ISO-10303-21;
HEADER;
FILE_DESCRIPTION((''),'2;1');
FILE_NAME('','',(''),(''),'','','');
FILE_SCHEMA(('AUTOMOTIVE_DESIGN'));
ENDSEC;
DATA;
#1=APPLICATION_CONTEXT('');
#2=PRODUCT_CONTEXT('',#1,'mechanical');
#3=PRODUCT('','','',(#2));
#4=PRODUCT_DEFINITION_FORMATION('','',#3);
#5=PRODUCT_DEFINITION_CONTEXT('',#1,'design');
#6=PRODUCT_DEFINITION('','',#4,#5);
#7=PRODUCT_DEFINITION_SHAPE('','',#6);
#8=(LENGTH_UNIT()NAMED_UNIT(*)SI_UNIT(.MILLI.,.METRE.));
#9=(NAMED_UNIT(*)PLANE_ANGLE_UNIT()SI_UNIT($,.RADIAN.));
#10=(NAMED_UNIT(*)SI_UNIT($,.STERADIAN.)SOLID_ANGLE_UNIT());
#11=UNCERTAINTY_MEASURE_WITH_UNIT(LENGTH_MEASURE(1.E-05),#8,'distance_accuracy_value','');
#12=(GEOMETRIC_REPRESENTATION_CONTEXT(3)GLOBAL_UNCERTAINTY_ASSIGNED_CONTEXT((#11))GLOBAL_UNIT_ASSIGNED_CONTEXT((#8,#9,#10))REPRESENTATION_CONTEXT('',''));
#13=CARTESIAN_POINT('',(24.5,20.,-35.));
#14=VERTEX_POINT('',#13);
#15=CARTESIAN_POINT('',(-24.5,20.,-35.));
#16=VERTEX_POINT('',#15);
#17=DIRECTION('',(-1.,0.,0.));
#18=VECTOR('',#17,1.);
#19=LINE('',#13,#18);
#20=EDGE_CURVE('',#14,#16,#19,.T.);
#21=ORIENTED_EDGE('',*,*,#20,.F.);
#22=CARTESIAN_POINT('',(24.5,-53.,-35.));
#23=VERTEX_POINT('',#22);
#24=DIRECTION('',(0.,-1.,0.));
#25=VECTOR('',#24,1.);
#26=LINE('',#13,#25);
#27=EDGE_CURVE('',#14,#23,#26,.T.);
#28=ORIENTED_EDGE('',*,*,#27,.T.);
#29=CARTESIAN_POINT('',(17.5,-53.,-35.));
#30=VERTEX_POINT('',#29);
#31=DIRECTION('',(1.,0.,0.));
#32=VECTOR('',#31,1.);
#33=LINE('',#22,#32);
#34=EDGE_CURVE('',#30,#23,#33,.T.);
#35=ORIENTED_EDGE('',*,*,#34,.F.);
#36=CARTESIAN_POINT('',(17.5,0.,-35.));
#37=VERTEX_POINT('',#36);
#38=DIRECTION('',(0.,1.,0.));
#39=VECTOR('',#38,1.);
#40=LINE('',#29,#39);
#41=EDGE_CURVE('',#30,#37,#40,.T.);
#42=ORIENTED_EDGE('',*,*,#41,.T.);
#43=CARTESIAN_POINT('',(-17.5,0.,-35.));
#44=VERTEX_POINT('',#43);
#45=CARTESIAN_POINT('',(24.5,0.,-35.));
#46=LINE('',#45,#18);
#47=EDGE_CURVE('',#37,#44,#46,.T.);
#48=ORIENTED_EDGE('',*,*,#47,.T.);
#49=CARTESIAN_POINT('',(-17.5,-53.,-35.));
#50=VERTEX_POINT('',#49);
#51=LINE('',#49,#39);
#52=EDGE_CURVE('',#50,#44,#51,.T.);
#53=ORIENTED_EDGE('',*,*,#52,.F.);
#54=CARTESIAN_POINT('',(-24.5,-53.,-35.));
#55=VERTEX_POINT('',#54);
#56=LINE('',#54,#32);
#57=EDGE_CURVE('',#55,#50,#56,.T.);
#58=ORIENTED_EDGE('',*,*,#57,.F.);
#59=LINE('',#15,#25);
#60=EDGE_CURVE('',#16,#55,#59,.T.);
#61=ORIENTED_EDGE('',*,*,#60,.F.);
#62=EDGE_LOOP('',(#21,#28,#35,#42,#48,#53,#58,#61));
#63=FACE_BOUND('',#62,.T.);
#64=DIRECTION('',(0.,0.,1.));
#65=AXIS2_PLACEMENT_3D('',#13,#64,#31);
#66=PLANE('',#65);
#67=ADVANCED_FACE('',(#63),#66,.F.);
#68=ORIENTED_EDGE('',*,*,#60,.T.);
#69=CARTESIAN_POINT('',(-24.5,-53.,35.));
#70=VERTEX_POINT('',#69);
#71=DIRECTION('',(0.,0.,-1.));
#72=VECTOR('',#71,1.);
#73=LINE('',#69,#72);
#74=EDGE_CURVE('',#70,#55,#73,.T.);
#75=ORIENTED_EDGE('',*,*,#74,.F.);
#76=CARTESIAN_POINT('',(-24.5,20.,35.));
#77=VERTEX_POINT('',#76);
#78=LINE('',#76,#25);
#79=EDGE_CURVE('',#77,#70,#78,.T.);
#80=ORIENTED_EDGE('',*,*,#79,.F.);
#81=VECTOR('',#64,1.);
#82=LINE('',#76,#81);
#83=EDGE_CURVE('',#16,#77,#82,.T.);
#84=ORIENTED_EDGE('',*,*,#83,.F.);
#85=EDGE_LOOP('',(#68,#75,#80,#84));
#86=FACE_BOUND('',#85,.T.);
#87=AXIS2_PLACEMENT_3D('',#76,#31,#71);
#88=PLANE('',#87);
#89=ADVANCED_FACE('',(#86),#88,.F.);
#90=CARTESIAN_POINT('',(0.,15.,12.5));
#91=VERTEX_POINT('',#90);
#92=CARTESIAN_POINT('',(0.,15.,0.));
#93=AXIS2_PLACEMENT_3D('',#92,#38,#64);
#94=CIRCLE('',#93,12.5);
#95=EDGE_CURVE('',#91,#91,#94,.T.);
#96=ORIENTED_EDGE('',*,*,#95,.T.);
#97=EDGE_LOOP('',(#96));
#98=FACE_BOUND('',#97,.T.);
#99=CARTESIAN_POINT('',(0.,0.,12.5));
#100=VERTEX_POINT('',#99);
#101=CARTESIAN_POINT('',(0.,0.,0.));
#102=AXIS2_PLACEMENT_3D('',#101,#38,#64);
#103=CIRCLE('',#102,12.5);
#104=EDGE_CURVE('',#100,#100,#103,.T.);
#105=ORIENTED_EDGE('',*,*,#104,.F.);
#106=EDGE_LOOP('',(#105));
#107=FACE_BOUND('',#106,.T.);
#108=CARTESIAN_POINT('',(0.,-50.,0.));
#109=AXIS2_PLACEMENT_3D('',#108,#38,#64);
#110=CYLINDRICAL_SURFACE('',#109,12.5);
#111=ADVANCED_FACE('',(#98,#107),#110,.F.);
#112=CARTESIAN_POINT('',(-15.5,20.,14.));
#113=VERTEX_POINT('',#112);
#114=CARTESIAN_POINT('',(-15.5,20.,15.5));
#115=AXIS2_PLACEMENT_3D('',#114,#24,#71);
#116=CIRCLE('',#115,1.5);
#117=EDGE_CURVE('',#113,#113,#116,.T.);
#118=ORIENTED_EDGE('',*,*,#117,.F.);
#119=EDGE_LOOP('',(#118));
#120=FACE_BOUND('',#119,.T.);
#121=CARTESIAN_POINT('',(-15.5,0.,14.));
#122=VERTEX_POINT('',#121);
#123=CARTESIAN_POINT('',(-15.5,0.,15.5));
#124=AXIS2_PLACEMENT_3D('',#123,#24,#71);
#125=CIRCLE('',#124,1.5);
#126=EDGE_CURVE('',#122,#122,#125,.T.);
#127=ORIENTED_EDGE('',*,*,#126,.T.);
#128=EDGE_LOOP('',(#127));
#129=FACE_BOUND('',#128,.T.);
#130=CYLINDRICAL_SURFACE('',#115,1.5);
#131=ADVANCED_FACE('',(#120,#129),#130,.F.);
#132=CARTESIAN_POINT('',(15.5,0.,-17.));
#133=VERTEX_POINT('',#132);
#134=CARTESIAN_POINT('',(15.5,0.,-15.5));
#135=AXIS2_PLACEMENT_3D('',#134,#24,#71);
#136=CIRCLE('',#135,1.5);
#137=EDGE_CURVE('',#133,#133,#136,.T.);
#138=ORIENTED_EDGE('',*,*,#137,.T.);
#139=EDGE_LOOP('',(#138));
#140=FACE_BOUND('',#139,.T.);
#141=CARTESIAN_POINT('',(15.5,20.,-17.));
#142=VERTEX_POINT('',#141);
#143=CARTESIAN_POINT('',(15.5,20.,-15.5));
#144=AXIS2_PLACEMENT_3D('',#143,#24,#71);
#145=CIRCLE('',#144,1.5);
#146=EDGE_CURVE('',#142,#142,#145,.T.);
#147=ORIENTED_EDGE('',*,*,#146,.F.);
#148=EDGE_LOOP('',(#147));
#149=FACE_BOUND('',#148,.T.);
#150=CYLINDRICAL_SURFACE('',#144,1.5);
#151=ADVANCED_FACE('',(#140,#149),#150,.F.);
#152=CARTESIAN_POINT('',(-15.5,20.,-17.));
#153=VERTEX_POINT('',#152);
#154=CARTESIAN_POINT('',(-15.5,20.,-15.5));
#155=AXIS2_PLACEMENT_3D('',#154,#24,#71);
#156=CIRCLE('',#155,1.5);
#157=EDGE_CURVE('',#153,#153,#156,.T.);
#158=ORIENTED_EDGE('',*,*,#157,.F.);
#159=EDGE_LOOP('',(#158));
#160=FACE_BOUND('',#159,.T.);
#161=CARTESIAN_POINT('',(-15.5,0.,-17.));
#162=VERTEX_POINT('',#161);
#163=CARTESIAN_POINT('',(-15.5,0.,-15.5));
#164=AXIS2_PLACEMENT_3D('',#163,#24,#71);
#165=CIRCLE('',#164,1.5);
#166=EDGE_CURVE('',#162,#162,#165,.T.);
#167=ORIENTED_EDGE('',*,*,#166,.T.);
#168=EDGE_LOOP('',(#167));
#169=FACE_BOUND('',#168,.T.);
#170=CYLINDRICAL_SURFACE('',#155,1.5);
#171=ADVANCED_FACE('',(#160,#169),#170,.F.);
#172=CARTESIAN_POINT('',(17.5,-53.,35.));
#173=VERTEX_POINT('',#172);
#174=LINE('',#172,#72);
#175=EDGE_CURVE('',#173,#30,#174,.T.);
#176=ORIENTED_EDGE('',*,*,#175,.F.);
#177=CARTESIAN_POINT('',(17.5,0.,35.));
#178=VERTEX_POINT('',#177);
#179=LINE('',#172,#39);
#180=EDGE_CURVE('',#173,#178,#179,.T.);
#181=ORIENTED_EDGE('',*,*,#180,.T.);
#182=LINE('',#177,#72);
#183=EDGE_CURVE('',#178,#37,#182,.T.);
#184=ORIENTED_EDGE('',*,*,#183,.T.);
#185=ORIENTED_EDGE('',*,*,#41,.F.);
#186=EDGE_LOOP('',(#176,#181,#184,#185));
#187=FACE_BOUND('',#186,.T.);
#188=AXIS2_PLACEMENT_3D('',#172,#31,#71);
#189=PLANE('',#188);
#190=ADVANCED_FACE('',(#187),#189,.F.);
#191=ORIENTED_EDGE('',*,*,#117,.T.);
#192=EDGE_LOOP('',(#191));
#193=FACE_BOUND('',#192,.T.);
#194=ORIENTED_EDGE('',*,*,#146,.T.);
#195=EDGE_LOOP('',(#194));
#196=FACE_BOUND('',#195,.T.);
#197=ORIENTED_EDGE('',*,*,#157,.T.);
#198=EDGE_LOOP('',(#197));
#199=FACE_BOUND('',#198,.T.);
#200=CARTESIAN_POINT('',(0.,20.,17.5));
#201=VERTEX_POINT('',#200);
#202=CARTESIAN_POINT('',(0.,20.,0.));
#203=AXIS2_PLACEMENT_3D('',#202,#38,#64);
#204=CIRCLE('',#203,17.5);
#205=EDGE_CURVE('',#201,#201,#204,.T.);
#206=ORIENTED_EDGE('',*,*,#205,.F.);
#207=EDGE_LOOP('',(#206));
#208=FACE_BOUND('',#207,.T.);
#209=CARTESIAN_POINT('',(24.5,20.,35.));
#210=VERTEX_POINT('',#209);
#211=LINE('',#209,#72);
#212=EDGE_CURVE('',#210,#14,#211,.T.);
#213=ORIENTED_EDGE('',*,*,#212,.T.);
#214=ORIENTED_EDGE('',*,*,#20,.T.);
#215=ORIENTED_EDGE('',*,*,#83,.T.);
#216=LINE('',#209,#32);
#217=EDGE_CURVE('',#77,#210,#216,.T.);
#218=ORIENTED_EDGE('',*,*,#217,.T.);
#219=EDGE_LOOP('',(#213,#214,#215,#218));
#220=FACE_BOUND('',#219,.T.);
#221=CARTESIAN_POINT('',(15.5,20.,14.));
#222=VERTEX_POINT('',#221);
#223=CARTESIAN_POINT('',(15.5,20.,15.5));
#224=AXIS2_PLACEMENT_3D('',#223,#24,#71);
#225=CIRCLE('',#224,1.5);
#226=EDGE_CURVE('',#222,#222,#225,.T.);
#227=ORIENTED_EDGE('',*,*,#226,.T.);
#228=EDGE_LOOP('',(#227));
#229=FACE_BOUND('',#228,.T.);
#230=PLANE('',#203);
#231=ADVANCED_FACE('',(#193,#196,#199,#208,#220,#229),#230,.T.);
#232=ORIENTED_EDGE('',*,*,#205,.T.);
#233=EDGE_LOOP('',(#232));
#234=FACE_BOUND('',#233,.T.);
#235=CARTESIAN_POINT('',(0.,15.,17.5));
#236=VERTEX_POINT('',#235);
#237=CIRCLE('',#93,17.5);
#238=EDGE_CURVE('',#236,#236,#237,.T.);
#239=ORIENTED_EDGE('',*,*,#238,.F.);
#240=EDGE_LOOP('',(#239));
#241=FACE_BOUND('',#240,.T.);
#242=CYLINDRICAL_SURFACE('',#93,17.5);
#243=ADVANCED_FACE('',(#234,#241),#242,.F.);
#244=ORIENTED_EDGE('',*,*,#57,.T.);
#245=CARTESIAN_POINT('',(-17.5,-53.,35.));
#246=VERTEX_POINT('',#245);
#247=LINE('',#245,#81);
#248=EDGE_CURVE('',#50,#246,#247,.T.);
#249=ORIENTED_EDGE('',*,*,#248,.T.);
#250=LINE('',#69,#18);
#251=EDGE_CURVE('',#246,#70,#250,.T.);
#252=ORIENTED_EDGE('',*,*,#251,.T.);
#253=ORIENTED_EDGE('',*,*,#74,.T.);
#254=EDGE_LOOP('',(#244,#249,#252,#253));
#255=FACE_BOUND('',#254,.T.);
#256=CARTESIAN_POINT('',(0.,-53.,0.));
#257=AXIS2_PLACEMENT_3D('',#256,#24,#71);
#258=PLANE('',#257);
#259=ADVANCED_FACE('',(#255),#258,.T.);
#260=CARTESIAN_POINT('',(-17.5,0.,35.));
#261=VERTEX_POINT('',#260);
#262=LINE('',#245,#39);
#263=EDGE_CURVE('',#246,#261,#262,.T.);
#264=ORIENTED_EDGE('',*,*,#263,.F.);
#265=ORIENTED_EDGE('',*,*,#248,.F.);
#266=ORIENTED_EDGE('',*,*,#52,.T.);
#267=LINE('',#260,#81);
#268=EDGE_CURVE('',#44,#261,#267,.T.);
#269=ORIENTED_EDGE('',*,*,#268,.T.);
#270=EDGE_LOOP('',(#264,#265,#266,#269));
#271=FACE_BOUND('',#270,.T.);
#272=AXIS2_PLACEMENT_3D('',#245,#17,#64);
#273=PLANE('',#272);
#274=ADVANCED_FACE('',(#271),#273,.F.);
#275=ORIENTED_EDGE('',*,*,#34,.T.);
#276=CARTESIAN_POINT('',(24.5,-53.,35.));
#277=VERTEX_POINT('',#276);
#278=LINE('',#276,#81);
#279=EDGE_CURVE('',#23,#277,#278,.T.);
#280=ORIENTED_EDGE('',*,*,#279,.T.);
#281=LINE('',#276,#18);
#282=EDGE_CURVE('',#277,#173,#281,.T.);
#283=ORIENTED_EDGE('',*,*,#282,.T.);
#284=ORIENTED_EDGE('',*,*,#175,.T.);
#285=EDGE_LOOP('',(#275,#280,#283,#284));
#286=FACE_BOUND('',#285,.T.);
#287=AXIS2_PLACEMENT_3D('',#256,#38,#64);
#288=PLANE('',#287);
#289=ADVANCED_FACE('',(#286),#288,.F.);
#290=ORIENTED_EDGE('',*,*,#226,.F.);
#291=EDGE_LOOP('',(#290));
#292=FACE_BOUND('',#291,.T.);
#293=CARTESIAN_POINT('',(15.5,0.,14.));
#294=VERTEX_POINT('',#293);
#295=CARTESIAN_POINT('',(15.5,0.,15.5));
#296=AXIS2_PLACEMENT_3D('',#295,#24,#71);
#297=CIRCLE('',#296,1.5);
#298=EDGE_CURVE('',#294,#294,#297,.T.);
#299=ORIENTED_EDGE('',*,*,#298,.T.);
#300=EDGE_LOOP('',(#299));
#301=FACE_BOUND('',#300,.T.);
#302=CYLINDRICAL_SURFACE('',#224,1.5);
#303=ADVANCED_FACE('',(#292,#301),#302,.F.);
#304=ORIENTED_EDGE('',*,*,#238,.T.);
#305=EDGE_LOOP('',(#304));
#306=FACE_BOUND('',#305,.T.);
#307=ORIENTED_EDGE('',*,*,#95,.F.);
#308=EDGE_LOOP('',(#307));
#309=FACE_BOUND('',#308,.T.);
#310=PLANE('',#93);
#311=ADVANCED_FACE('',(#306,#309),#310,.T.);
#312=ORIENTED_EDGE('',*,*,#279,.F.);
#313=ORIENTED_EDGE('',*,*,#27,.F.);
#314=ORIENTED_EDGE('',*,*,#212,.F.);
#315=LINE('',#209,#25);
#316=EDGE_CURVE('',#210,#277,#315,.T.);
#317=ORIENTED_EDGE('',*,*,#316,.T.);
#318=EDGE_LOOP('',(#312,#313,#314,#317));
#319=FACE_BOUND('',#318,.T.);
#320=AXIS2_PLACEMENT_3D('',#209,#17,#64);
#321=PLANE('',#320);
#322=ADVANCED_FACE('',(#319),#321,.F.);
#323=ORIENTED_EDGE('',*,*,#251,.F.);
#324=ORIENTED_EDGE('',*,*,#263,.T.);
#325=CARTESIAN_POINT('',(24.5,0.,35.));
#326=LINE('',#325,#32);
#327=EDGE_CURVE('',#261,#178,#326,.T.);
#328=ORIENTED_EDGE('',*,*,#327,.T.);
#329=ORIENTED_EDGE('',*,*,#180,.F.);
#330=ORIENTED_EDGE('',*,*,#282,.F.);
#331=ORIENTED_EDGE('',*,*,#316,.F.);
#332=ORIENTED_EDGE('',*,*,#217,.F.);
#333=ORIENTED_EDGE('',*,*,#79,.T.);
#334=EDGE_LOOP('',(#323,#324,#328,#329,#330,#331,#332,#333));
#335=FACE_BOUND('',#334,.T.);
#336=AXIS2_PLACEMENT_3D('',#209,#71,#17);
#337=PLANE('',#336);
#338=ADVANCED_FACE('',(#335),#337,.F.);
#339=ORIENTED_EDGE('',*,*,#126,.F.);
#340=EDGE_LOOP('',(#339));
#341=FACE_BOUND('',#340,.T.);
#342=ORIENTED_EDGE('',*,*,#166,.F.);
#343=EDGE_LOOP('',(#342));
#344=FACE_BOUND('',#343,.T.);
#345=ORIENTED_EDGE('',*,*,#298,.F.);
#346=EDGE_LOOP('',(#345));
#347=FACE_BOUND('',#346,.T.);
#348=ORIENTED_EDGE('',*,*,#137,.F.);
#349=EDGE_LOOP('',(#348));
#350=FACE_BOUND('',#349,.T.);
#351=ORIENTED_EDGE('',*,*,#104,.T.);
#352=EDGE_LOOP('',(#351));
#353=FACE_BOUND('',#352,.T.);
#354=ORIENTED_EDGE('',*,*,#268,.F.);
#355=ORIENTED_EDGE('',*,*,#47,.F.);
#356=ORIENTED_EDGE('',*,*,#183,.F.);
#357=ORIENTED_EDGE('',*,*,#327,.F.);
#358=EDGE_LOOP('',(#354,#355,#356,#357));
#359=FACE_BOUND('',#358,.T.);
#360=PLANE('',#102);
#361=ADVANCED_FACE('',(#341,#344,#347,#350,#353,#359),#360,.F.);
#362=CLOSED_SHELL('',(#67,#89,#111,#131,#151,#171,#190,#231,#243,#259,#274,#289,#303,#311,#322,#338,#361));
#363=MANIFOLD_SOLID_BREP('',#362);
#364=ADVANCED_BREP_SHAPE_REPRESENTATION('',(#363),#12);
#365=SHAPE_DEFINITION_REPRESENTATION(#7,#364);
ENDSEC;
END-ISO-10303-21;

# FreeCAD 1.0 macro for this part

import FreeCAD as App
import Part
import Sketcher

V = App.Vector
Q = App.Units.Quantity

doc = App.newDocument("Part")
body = doc.addObject("PartDesign::Body", "Body")

# Sketch on XZ plane
sketch1 = body.newObject("Sketcher::SketchObject", "Sketch")
sketch1.AttachmentSupport = (doc.getObject("XZ_Plane"), [""])
sketch1.MapMode = "FlatFace"
sketch1.addGeometry([
    Part.LineSegment(V(-24.5, -35, 0), V(-24.5, 35, 0)),
    Part.LineSegment(V(-24.5, 35, 0), V(24.5, 35, 0)),
    Part.LineSegment(V(24.5, 35, 0), V(24.5, -35, 0)),
    Part.LineSegment(V(24.5, -35, 0), V(-24.5, -35, 0)),
], False)
sketch1.addConstraint([
    Sketcher.Constraint("Coincident", 0, 2, 1, 1),
    Sketcher.Constraint("Coincident", 1, 2, 2, 1),
    Sketcher.Constraint("Coincident", 2, 2, 3, 1),
    Sketcher.Constraint("Coincident", 3, 2, 0, 1),
    Sketcher.Constraint("Vertical", 0),
    Sketcher.Constraint("Horizontal", 1),
    Sketcher.Constraint("Vertical", 2),
    Sketcher.Constraint("Horizontal", 3),
    Sketcher.Constraint("Symmetric", 0, 2, 2, 2, -1, 1),
    Sketcher.Constraint("DistanceX", 1, 1, 1, 2, Q("49 mm")),
    Sketcher.Constraint("DistanceY", 0, 1, 0, 2, Q("70 mm")),
])
pad1 = body.newObject("PartDesign::Pad", "Pad")
pad1.Profile = sketch1
pad1.Length = 20
pad1.Reversed = True

# Sketch on XZ plane
sketch2 = body.newObject("Sketcher::SketchObject", "Sketch001")
sketch2.AttachmentSupport = (doc.getObject("XZ_Plane"), [""])
sketch2.MapMode = "FlatFace"
sketch2.AttachmentOffset = App.Placement(V(0, 0, -20), App.Rotation())
sketch2.addGeometry(Part.Circle(V(0, 0, 0), V(0, 0, 1), 12.5), False)
sketch2.addConstraint([
    Sketcher.Constraint("Coincident", 0, 3, -1, 1),
    Sketcher.Constraint("Diameter", 0, Q("25 mm")),
])
pocket1 = body.newObject("PartDesign::Pocket", "Pocket")
pocket1.Profile = sketch2
pocket1.Length = 70
pocket1.Reversed = True

# Sketch on XZ plane
sketch3 = body.newObject("Sketcher::SketchObject", "Sketch002")
sketch3.AttachmentSupport = (doc.getObject("XZ_Plane"), [""])
sketch3.MapMode = "FlatFace"
sketch3.addGeometry([
    Part.Circle(V(-15.5, 15.5, 0), V(0, 0, 1), 1.5),
    Part.Circle(V(15.5, 15.5, 0), V(0, 0, 1), 1.5),
    Part.Circle(V(15.5, -15.5, 0), V(0, 0, 1), 1.5),
    Part.Circle(V(-15.5, -15.5, 0), V(0, 0, 1), 1.5),
], False)
sketch3.addConstraint([
    Sketcher.Constraint("Equal", 0, 1),
    Sketcher.Constraint("Equal", 1, 2),
    Sketcher.Constraint("Equal", 2, 3),
    Sketcher.Constraint("Symmetric", 0, 3, 2, 3, -1, 1),
    Sketcher.Constraint("Symmetric", 1, 3, 3, 3, -1, 1),
    Sketcher.Constraint("Symmetric", 0, 3, 1, 3, -2),
    Sketcher.Constraint("Diameter", 0, Q("3 mm")),
    Sketcher.Constraint("DistanceX", 0, 3, 1, 3, Q("31 mm")),
    Sketcher.Constraint("DistanceY", 2, 3, 1, 3, Q("31 mm")),
])
pocket2 = body.newObject("PartDesign::Pocket", "Pocket001")
pocket2.Profile = sketch3
pocket2.Type = "ThroughAll"

# Sketch on XZ plane
sketch4 = body.newObject("Sketcher::SketchObject", "Sketch003")
sketch4.AttachmentSupport = (doc.getObject("XZ_Plane"), [""])
sketch4.MapMode = "FlatFace"
sketch4.AttachmentOffset = App.Placement(V(0, 0, -20), App.Rotation())
sketch4.addGeometry([
    Part.Circle(V(0, 0, 0), V(0, 0, 1), 17.5),
    Part.Circle(V(0, 0, 0), V(0, 0, 1), 12.5),
], False)
sketch4.addConstraint([
    Sketcher.Constraint("Coincident", 0, 3, -1, 1),
    Sketcher.Constraint("Coincident", 1, 3, -1, 1),
    Sketcher.Constraint("Diameter", 0, Q("35 mm")),
    Sketcher.Constraint("Diameter", 1, Q("25 mm")),
])
pocket3 = body.newObject("PartDesign::Pocket", "Pocket002")
pocket3.Profile = sketch4
pocket3.Length = 5
pocket3.Reversed = True

# Sketch on XZ plane
sketch5 = body.newObject("Sketcher::SketchObject", "Sketch004")
sketch5.AttachmentSupport = (doc.getObject("XZ_Plane"), [""])
sketch5.MapMode = "FlatFace"
sketch5.addGeometry([
    Part.LineSegment(V(-24.5, 35, 0), V(-24.5, -35, 0)),  # 0
    Part.LineSegment(V(-24.5, -35, 0), V(-17.5, -35, 0)),  # 1
    Part.LineSegment(V(-17.5, -35, 0), V(-17.5, 35, 0)),  # 2
    Part.LineSegment(V(-17.5, 35, 0), V(-24.5, 35, 0)),  # 3
    Part.LineSegment(V(17.5, 35, 0), V(17.5, -35, 0)),  # 4
    Part.LineSegment(V(17.5, -35, 0), V(24.5, -35, 0)),  # 5
    Part.LineSegment(V(24.5, -35, 0), V(24.5, 35, 0)),  # 6
    Part.LineSegment(V(24.5, 35, 0), V(17.5, 35, 0)),  # 7
], False)
sketch5.addConstraint([
    Sketcher.Constraint("Coincident", 0, 2, 1, 1),
    Sketcher.Constraint("Coincident", 1, 2, 2, 1),
    Sketcher.Constraint("Coincident", 2, 2, 3, 1),
    Sketcher.Constraint("Coincident", 3, 2, 0, 1),
    Sketcher.Constraint("Coincident", 4, 2, 5, 1),
    Sketcher.Constraint("Coincident", 5, 2, 6, 1),
    Sketcher.Constraint("Coincident", 6, 2, 7, 1),
    Sketcher.Constraint("Coincident", 7, 2, 4, 1),
    Sketcher.Constraint("Vertical", 0),
    Sketcher.Constraint("Horizontal", 1),
    Sketcher.Constraint("Vertical", 2),
    Sketcher.Constraint("Horizontal", 3),
    Sketcher.Constraint("Vertical", 4),
    Sketcher.Constraint("Horizontal", 5),
    Sketcher.Constraint("Vertical", 6),
    Sketcher.Constraint("Horizontal", 7),
    Sketcher.Constraint("Symmetric", 2, 2, 4, 2, -1, 1),
    Sketcher.Constraint("Symmetric", 0, 2, 6, 2, -1, 1),
    Sketcher.Constraint("Horizontal", 1, 2, 4, 2),
    Sketcher.Constraint("DistanceX", 1, 1, 1, 2, Q("7 mm")),
    Sketcher.Constraint("DistanceY", 0, 2, 0, 1, Q("70 mm")),
    Sketcher.Constraint("DistanceX", 1, 2, 4, 2, Q("35 mm")),
])
pad2 = body.newObject("PartDesign::Pad", "Pad001")
pad2.Profile = sketch5
pad2.Length = 53

doc.recompute()
